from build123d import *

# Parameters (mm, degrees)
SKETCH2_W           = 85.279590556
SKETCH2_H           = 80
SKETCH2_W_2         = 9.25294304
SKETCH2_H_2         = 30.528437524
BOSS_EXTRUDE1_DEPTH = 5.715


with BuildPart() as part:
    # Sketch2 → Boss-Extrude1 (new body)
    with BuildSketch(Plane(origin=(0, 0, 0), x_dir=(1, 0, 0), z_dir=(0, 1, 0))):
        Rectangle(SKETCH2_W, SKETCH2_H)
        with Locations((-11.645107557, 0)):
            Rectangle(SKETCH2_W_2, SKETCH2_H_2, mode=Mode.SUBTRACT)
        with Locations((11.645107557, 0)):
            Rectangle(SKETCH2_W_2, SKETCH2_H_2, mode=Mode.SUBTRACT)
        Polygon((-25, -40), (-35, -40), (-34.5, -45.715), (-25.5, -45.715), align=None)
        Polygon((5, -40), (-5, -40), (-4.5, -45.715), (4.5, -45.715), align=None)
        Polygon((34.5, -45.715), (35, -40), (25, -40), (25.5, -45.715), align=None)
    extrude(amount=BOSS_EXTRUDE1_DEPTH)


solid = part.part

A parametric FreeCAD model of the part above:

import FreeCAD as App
import Part
import Sketcher


def add_polygon(sketch, points):
    """Adds a closed chain of lines whose ends are joined by coincident constraints."""
    first, n = sketch.GeometryCount, len(points)
    for a, b in zip(points, points[1:] + points[:1]):
        sketch.addGeometry(Part.LineSegment(App.Vector(*a, 0), App.Vector(*b, 0)), False)
    for i in range(n):
        sketch.addConstraint(Sketcher.Constraint("Coincident", first + i, 2, first + (i + 1) % n, 1))

doc = App.newDocument("Part")
params = doc.addObject("Spreadsheet::Sheet", "Params")
for row, (alias, value) in enumerate([
    ("sketch1_width", "9 mm"),
    ("sketch1_width2", "20 mm"),
    ("sketch1_height", "80 mm"),
    ("pad1_length", "5.715 mm"),
], start=1):
    params.set(f"A{row}", alias)
    params.set(f"B{row}", "=" + value)
    params.setAlias(f"B{row}", alias)

body = doc.addObject("PartDesign::Body", "Body")

# Sketch on XZ plane
sketch1 = body.newObject("Sketcher::SketchObject", "Sketch")
sketch1.AttachmentSupport = (doc.getObject("XZ_Plane"), [""])
sketch1.MapMode = "FlatFace"
add_polygon(sketch1, [(-43, -40), (-43, 40), (-35, 40), (-34, 46), (-26, 46), (-25, 40), (-5, 40), (-4, 46), (4, 46), (5, 40), (25, 40), (26, 46), (34, 46), (35, 40), (43, 40), (43, -40)])  # lines 0-15
add_polygon(sketch1, [(-7, 15), (-16, 15), (-16, -15), (-7, -15)])  # lines 16-19
add_polygon(sketch1, [(16, 15), (7, 15), (7, -15), (16, -15)])  # lines 20-23
sketch1.addConstraint([
    Sketcher.Constraint("Vertical", 0),
    Sketcher.Constraint("Horizontal", 1),
    Sketcher.Constraint("Horizontal", 3),
    Sketcher.Constraint("Horizontal", 5),
    Sketcher.Constraint("Horizontal", 7),
    Sketcher.Constraint("Horizontal", 9),
    Sketcher.Constraint("Horizontal", 11),
    Sketcher.Constraint("Horizontal", 13),
    Sketcher.Constraint("Vertical", 14),
    Sketcher.Constraint("Horizontal", 15),
    Sketcher.Constraint("Horizontal", 16),
    Sketcher.Constraint("Vertical", 17),
    Sketcher.Constraint("Horizontal", 18),
    Sketcher.Constraint("Vertical", 19),
    Sketcher.Constraint("Horizontal", 20),
    Sketcher.Constraint("Vertical", 21),
    Sketcher.Constraint("Horizontal", 22),
    Sketcher.Constraint("Vertical", 23),
    Sketcher.Constraint("Symmetric", 0, 2, 14, 2, -1, 1),
    Sketcher.Constraint("Symmetric", 18, 2, 20, 2, -1, 1),
    Sketcher.Constraint("Symmetric", 16, 2, 22, 2, -1, 1),
    Sketcher.Constraint("Symmetric", 5, 2, 8, 2, -2),
    Sketcher.Constraint("Symmetric", 3, 2, 10, 2, -2),
    Sketcher.Constraint("Symmetric", 1, 2, 12, 2, -2),
    Sketcher.Constraint("Parallel", 2, 6),
    Sketcher.Constraint("Parallel", 4, 8),
    Sketcher.Constraint("Parallel", 6, 10),
    Sketcher.Constraint("Parallel", 8, 12),
    Sketcher.Constraint("Horizontal", 1, 2, 4, 2),
    Sketcher.Constraint("Horizontal", 3, 2, 6, 2),
    Sketcher.Constraint("Horizontal", 19, 2, 20, 2),
    Sketcher.Constraint("Equal", 3, 7),
    Sketcher.Constraint("Equal", 5, 9),
    Sketcher.Constraint("DistanceX", 3, 1, 3, 2, 9.0),
    Sketcher.Constraint("DistanceX", 5, 1, 5, 2, 20.0),
    Sketcher.Constraint("DistanceY", 0, 1, 0, 2, 80.0),
    Sketcher.Constraint("DistanceX", 1, 2, -1, 1, 35.0),
    Sketcher.Constraint("DistanceY", -1, 1, 2, 2, 45.715),
    Sketcher.Constraint("DistanceX", 15, 2, 15, 1, 85.279591),
    Sketcher.Constraint("DistanceX", 16, 2, 16, 1, 9.252943),
    Sketcher.Constraint("DistanceY", 17, 2, 17, 1, 30.528438),
    Sketcher.Constraint("DistanceX", 16, 2, -1, 1, 16.271579),
])
sketch1.setExpression("Constraints[57]", "Params.sketch1_width")
sketch1.setExpression("Constraints[58]", "Params.sketch1_width2")
sketch1.setExpression("Constraints[59]", "Params.sketch1_height")
pad1 = body.newObject("PartDesign::Pad", "Pad")
pad1.Profile = sketch1
pad1.setExpression("Length", "Params.pad1_length")
pad1.Reversed = True

doc.recompute()
